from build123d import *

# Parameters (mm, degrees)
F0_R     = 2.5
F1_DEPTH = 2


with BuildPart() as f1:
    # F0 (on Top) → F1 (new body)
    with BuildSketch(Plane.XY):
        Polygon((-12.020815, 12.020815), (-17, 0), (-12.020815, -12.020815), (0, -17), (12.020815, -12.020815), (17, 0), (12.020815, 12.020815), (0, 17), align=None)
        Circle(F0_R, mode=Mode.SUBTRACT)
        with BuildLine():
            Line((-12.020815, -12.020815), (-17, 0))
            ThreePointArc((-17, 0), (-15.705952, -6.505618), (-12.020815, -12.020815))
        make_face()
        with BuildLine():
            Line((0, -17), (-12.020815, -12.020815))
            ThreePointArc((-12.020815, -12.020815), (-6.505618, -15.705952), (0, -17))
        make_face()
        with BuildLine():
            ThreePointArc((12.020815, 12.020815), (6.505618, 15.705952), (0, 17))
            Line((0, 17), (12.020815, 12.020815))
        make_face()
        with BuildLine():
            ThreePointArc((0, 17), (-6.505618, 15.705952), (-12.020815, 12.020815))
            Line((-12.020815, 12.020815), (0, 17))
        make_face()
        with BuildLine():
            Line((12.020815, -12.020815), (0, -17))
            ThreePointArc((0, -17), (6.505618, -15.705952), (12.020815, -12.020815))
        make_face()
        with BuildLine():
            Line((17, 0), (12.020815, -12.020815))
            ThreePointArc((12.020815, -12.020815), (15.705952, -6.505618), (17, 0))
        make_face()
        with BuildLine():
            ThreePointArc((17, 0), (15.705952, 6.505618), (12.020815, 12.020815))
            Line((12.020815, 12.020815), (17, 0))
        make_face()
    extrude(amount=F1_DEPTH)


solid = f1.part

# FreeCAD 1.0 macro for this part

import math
import FreeCAD as App
import Part
import Sketcher
from FreeCAD import Vector
Q = App.Units.Quantity

doc = App.newDocument("Part")
body = doc.addObject("PartDesign::Body", "Body")

# Sketch on XY plane
sketch1 = body.newObject("Sketcher::SketchObject", "Sketch")
sketch1.AttachmentSupport = (doc.getObject("XY_Plane"), [""])
sketch1.MapMode = "FlatFace"
sketch1.addGeometry([
    Part.LineSegment(Vector(-12, 12, 0), Vector(-17, 0, 0)),  # 0
    Part.ArcOfCircle(Part.Circle(Vector(0, 0, 0), Vector(0, 0, 1), 17), math.radians(-180), math.radians(-135)),  # 1
    Part.ArcOfCircle(Part.Circle(Vector(0, 0, 0), Vector(0, 0, 1), 17), math.radians(-135), math.radians(-90)),  # 2
    Part.ArcOfCircle(Part.Circle(Vector(0, 0, 0), Vector(0, 0, 1), 17), math.radians(-90), math.radians(-45)),  # 3
    Part.ArcOfCircle(Part.Circle(Vector(0, 0, 0), Vector(0, 0, 1), 17), math.radians(-45), math.radians(0)),  # 4
    Part.ArcOfCircle(Part.Circle(Vector(0, 0, 0), Vector(0, 0, 1), 17), math.radians(0), math.radians(45)),  # 5
    Part.ArcOfCircle(Part.Circle(Vector(0, 0, 0), Vector(0, 0, 1), 17), math.radians(45), math.radians(90)),  # 6
    Part.ArcOfCircle(Part.Circle(Vector(0, 0, 0), Vector(0, 0, 1), 17), math.radians(90), math.radians(135)),  # 7
    Part.Circle(Vector(0, 0, 0), Vector(0, 0, 1), 2.5),  # 8
], False)
sketch1.addConstraint([
    Sketcher.Constraint("Coincident", 0, 2, 1, 1),
    Sketcher.Constraint("Tangent", 1, 2, 2, 1),
    Sketcher.Constraint("Tangent", 2, 2, 3, 1),
    Sketcher.Constraint("Tangent", 3, 2, 4, 1),
    Sketcher.Constraint("Tangent", 4, 2, 5, 1),
    Sketcher.Constraint("Tangent", 5, 2, 6, 1),
    Sketcher.Constraint("Tangent", 6, 2, 7, 1),
    Sketcher.Constraint("Coincident", 7, 2, 0, 1),
    Sketcher.Constraint("Coincident", 1, 3, -1, 1),
    Sketcher.Constraint("Coincident", 3, 3, -1, 1),
    Sketcher.Constraint("Coincident", 5, 3, -1, 1),
    Sketcher.Constraint("Coincident", 7, 3, -1, 1),
    Sketcher.Constraint("Coincident", 8, 3, -1, 1),
    Sketcher.Constraint("PointOnObject", 0, 2, -1),
    Sketcher.Constraint("PointOnObject", 2, 2, -2),
    Sketcher.Constraint("PointOnObject", 4, 2, -1),
    Sketcher.Constraint("PointOnObject", 6, 2, -2),
    Sketcher.Constraint("Horizontal", 1, 2, 3, 2),
    Sketcher.Constraint("Horizontal", 5, 2, 7, 2),
    Sketcher.Constraint("Vertical", 3, 2, 5, 2),
    Sketcher.Constraint("Diameter", 8, 5.0),
    Sketcher.Constraint("Radius", 1, 17.0),
    Sketcher.Constraint("Angle", 0, Q("-112.500002 deg")),
])
pad1 = body.newObject("PartDesign::Pad", "Pad")
pad1.Profile = sketch1
pad1.Length = 2

doc.recompute()
